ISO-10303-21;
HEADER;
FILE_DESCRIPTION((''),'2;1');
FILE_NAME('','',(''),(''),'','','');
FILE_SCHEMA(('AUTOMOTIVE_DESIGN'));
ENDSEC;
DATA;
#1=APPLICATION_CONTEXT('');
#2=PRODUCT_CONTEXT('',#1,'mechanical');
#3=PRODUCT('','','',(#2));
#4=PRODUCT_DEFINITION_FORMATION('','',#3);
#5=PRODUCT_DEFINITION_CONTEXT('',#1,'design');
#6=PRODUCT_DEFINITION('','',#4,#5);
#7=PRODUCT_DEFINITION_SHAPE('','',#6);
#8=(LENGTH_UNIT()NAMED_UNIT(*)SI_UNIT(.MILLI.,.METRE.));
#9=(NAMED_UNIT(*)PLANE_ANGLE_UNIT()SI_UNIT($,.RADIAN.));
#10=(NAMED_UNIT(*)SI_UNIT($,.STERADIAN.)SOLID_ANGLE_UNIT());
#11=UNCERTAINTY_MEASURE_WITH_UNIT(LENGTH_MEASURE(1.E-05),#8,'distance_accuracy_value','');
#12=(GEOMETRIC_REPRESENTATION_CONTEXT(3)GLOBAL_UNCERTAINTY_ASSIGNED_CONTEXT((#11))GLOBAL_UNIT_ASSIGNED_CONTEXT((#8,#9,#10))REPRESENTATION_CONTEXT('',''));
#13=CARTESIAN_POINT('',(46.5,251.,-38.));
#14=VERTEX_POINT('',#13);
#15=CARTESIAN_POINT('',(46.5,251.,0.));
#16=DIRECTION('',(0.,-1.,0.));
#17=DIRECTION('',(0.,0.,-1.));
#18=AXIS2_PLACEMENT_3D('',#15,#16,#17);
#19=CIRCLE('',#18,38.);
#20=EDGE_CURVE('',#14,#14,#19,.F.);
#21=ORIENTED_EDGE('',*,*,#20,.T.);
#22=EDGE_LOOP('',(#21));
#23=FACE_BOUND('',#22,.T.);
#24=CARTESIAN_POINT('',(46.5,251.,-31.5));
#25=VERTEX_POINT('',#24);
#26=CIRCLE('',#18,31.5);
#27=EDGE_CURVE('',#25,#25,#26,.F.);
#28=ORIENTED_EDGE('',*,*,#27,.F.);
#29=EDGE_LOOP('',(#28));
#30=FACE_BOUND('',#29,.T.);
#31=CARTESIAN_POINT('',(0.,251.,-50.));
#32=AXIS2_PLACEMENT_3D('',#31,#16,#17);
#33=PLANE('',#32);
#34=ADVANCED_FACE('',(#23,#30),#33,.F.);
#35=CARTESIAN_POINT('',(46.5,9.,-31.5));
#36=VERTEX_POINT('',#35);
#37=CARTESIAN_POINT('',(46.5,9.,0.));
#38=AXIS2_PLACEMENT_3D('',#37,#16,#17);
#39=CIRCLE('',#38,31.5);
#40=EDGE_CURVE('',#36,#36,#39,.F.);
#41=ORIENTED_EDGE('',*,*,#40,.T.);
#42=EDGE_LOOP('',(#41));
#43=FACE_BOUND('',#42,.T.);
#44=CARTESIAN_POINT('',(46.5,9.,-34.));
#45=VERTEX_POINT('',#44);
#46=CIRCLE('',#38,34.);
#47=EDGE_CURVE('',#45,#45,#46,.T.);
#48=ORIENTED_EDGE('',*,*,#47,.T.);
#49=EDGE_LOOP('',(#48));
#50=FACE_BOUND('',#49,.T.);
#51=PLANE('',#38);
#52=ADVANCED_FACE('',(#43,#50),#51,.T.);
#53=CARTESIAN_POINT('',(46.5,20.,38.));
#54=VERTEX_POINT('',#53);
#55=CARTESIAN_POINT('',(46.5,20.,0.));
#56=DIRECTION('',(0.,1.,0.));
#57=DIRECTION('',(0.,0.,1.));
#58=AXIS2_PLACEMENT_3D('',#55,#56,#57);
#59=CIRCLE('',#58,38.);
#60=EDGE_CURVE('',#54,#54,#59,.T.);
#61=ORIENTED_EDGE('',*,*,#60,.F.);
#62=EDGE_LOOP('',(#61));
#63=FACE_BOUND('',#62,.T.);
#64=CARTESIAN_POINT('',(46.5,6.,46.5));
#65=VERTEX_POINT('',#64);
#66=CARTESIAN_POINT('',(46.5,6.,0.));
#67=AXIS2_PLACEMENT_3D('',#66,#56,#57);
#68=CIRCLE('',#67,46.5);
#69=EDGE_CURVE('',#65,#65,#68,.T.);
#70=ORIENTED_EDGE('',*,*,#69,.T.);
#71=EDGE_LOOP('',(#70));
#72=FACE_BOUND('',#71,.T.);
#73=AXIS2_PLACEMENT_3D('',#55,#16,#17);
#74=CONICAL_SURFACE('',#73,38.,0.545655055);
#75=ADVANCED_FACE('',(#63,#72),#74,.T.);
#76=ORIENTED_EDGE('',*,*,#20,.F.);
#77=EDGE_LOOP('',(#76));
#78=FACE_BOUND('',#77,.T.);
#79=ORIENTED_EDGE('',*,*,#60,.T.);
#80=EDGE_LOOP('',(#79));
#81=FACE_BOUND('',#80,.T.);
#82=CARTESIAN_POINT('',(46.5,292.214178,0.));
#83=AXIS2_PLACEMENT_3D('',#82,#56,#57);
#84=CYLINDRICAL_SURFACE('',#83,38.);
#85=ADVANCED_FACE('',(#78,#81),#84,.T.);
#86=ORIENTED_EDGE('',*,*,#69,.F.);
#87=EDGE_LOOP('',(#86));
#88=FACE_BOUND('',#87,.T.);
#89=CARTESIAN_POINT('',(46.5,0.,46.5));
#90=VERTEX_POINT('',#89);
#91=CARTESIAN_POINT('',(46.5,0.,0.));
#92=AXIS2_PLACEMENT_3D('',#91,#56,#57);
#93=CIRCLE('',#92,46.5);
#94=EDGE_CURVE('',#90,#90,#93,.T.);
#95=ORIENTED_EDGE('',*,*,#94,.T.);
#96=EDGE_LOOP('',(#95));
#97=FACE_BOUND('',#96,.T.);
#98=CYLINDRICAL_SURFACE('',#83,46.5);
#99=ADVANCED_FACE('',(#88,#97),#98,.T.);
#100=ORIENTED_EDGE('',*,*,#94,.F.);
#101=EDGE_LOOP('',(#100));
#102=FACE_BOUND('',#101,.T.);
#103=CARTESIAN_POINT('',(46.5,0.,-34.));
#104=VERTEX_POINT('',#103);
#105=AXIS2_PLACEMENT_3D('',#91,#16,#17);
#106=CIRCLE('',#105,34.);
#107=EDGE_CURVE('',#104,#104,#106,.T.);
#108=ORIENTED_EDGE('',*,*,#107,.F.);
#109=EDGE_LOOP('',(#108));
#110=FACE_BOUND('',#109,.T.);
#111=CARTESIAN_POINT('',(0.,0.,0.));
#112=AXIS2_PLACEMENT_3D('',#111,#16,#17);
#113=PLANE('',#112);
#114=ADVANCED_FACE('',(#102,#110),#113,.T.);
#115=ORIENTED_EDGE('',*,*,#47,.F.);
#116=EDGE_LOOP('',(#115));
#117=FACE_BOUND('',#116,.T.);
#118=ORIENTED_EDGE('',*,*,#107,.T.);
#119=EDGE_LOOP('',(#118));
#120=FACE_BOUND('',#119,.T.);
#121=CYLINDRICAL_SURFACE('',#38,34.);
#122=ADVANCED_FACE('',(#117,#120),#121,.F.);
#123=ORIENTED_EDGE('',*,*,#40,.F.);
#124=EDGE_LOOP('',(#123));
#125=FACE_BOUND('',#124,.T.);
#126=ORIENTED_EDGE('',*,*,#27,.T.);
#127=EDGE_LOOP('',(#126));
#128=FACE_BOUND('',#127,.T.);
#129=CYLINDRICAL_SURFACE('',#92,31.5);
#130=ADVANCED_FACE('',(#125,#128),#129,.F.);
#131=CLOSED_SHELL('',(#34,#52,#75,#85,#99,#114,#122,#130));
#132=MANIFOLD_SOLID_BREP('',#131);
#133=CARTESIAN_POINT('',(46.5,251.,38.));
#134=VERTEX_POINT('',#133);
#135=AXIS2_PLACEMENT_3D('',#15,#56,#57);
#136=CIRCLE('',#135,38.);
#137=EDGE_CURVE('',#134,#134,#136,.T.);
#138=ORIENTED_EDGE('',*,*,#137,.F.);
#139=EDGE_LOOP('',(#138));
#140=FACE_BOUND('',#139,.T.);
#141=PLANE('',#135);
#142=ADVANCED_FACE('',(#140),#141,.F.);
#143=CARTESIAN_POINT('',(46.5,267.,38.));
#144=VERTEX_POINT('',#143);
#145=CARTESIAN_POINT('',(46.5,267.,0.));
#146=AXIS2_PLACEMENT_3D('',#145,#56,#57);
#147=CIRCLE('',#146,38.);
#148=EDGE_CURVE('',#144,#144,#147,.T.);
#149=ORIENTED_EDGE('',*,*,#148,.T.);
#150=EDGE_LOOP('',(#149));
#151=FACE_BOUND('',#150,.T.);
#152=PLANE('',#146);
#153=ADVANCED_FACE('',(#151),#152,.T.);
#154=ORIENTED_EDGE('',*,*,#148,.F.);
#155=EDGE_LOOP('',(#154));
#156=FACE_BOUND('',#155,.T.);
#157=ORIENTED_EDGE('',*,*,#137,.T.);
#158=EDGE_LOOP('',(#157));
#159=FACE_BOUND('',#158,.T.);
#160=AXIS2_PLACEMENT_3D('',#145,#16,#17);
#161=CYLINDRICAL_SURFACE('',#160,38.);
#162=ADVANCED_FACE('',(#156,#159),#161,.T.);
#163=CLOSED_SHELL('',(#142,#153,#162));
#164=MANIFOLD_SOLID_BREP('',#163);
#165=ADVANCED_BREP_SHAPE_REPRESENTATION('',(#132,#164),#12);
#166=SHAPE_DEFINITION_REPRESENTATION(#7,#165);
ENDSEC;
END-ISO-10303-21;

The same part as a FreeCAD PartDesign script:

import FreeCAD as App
import Part
import Sketcher
from FreeCAD import Vector
Q = App.Units.Quantity

doc = App.newDocument("Part")
params = doc.addObject("Spreadsheet::Sheet", "Params")
for row, (alias, value) in enumerate([
    ("sketch1_width", "38 mm"),
    ("sketch1_height", "6 mm"),
    ("sketch1_height2", "268 mm"),
    ("sketch1_height3", "248 mm"),
    ("sketch1_width2", "46.5 mm"),
    ("revolution_angle", "360 deg"),
    ("sketch2_diameter", "63 mm"),
    ("sketch3_diameter", "68 mm"),
    ("pocket2_length", "9 mm"),
    ("pocket3_length", "100 mm"),
    ("sketch5_diameter", "76 mm"),
    ("pad1_length", "16 mm"),
], start=1):
    params.set(f"A{row}", alias)
    params.set(f"B{row}", "=" + value)
    params.setAlias(f"B{row}", alias)

body = doc.addObject("PartDesign::Body", "Body")

# Sketch on XY plane
sketch1 = doc.addObject("Sketcher::SketchObject", "Sketch")
body.addObject(sketch1)
sketch1.AttachmentSupport = (doc.XY_Plane, [""])
sketch1.MapMode = "FlatFace"
sketch1.addGeometry(Part.LineSegment(Vector(0, 6, 0), Vector(0, 0, 0)), False)
sketch1.addGeometry(Part.LineSegment(Vector(0, 0, 0), Vector(46, 0, 0)), False)
sketch1.addGeometry(Part.LineSegment(Vector(46, 0, 0), Vector(46, 268, 0)), False)
sketch1.addGeometry(Part.LineSegment(Vector(46, 268, 0), Vector(8, 268, 0)), False)
sketch1.addGeometry(Part.LineSegment(Vector(8, 268, 0), Vector(8, 20, 0)), False)
sketch1.addGeometry(Part.LineSegment(Vector(8, 20, 0), Vector(0, 6, 0)), False)
sketch1.addGeometry(Part.LineSegment(Vector(46, 268, 0), Vector(46, 0, 0)), True)  # axis
sketch1.addConstraint(Sketcher.Constraint("Coincident", 0, 2, 1, 1))
sketch1.addConstraint(Sketcher.Constraint("Coincident", 1, 2, 2, 1))
sketch1.addConstraint(Sketcher.Constraint("Coincident", 2, 2, 3, 1))
sketch1.addConstraint(Sketcher.Constraint("Coincident", 3, 2, 4, 1))
sketch1.addConstraint(Sketcher.Constraint("Coincident", 4, 2, 5, 1))
sketch1.addConstraint(Sketcher.Constraint("Coincident", 5, 2, 0, 1))
sketch1.addConstraint(Sketcher.Constraint("Vertical", 0))
sketch1.addConstraint(Sketcher.Constraint("Horizontal", 1))
sketch1.addConstraint(Sketcher.Constraint("Vertical", 2))
sketch1.addConstraint(Sketcher.Constraint("Horizontal", 3))
sketch1.addConstraint(Sketcher.Constraint("Vertical", 4))
sketch1.addConstraint(Sketcher.Constraint("Vertical", 6))
sketch1.addConstraint(Sketcher.Constraint("Coincident", 0, 2, -1, 1))
sketch1.addConstraint(Sketcher.Constraint("Coincident", 6, 1, 2, 2))
sketch1.addConstraint(Sketcher.Constraint("PointOnObject", 6, 2, -1))
sketch1.addConstraint(Sketcher.Constraint("DistanceX", 3, 2, 3, 1, Q("38 mm")))
sketch1.addConstraint(Sketcher.Constraint("DistanceY", 0, 2, 0, 1, Q("6 mm")))
sketch1.addConstraint(Sketcher.Constraint("DistanceY", 2, 1, 2, 2, Q("268 mm")))
sketch1.addConstraint(Sketcher.Constraint("DistanceY", 4, 2, 4, 1, Q("248 mm")))
sketch1.addConstraint(Sketcher.Constraint("DistanceX", 1, 1, 1, 2, Q("46.5 mm")))
sketch1.setExpression("Constraints[15]", "Params.sketch1_width")
sketch1.setExpression("Constraints[16]", "Params.sketch1_height")
sketch1.setExpression("Constraints[17]", "Params.sketch1_height2")
sketch1.setExpression("Constraints[18]", "Params.sketch1_height3")
sketch1.setExpression("Constraints[19]", "Params.sketch1_width2")
revolution = doc.addObject("PartDesign::Revolution", "Revolution")
body.addObject(revolution)
revolution.Profile = sketch1
revolution.ReferenceAxis = (sketch1, ["Axis0"])
revolution.setExpression("Angle", "Params.revolution_angle")

# Sketch on XZ plane
sketch2 = doc.addObject("Sketcher::SketchObject", "Sketch001")
body.addObject(sketch2)
sketch2.AttachmentSupport = (doc.XZ_Plane, [""])
sketch2.MapMode = "FlatFace"
sketch2.AttachmentOffset = App.Placement(Vector(0, 0, -268), App.Rotation())
sketch2.addGeometry(Part.Circle(Vector(46, 0, 0), Vector(0, 0, 1), 32), False)
sketch2.addConstraint(Sketcher.Constraint("PointOnObject", 0, 3, -1))
sketch2.addConstraint(Sketcher.Constraint("Diameter", 0, Q("63 mm")))
sketch2.addConstraint(Sketcher.Constraint("DistanceX", -1, 1, 0, 3, Q("46.5 mm")))
sketch2.setExpression("Constraints[1]", "Params.sketch2_diameter")
pocket1 = doc.addObject("PartDesign::Pocket", "Pocket")
body.addObject(pocket1)
pocket1.Profile = sketch2
pocket1.Type = "ThroughAll"
pocket1.Reversed = True

# Sketch on XZ plane
sketch3 = doc.addObject("Sketcher::SketchObject", "Sketch002")
body.addObject(sketch3)
sketch3.AttachmentSupport = (doc.XZ_Plane, [""])
sketch3.MapMode = "FlatFace"
sketch3.addGeometry(Part.Circle(Vector(46, 0, 0), Vector(0, 0, 1), 34), False)
sketch3.addConstraint(Sketcher.Constraint("PointOnObject", 0, 3, -1))
sketch3.addConstraint(Sketcher.Constraint("Diameter", 0, Q("68 mm")))
sketch3.addConstraint(Sketcher.Constraint("DistanceX", -1, 1, 0, 3, Q("46.5 mm")))
sketch3.setExpression("Constraints[1]", "Params.sketch3_diameter")
pocket2 = doc.addObject("PartDesign::Pocket", "Pocket001")
body.addObject(pocket2)
pocket2.Profile = sketch3
pocket2.setExpression("Length", "Params.pocket2_length")

# Sketch on XY plane
sketch4 = doc.addObject("Sketcher::SketchObject", "Sketch003")
body.addObject(sketch4)
sketch4.AttachmentSupport = (doc.XY_Plane, [""])
sketch4.MapMode = "FlatFace"
sketch4.addGeometry(Part.LineSegment(Vector(0, 275, 0), Vector(0, 251, 0)), False)
sketch4.addGeometry(Part.LineSegment(Vector(0, 251, 0), Vector(91, 251, 0)), False)
sketch4.addGeometry(Part.LineSegment(Vector(91, 251, 0), Vector(91, 275, 0)), False)
sketch4.addGeometry(Part.LineSegment(Vector(91, 275, 0), Vector(0, 275, 0)), False)
sketch4.addConstraint(Sketcher.Constraint("Coincident", 0, 2, 1, 1))
sketch4.addConstraint(Sketcher.Constraint("Coincident", 1, 2, 2, 1))
sketch4.addConstraint(Sketcher.Constraint("Coincident", 2, 2, 3, 1))
sketch4.addConstraint(Sketcher.Constraint("Coincident", 3, 2, 0, 1))
sketch4.addConstraint(Sketcher.Constraint("Vertical", 0))
sketch4.addConstraint(Sketcher.Constraint("Horizontal", 1))
sketch4.addConstraint(Sketcher.Constraint("Vertical", 2))
sketch4.addConstraint(Sketcher.Constraint("Horizontal", 3))
sketch4.addConstraint(Sketcher.Constraint("PointOnObject", 0, 2, -2))
sketch4.addConstraint(Sketcher.Constraint("DistanceY", -1, 1, 0, 2, Q("251 mm")))
sketch4.addConstraint(Sketcher.Constraint("DistanceX", 1, 1, 1, 2, Q("90.88026 mm")))
sketch4.addConstraint(Sketcher.Constraint("DistanceY", 0, 2, 0, 1, Q("24.111111 mm")))
pocket3 = doc.addObject("PartDesign::Pocket", "Pocket002")
body.addObject(pocket3)
pocket3.Profile = sketch4
pocket3.setExpression("Length", "Params.pocket3_length")
pocket3.Midplane = True
body2 = doc.addObject("PartDesign::Body", "Body001")

# Sketch on XZ plane
sketch5 = doc.addObject("Sketcher::SketchObject", "Sketch004")
body2.addObject(sketch5)
sketch5.AttachmentSupport = (doc.getObject("XZ_Plane001"), [""])
sketch5.MapMode = "FlatFace"
sketch5.AttachmentOffset = App.Placement(Vector(0, 0, -251), App.Rotation())
sketch5.addGeometry(Part.Circle(Vector(46, 0, 0), Vector(0, 0, 1), 38), False)
sketch5.addConstraint(Sketcher.Constraint("PointOnObject", 0, 3, -1))
sketch5.addConstraint(Sketcher.Constraint("Diameter", 0, Q("76 mm")))
sketch5.addConstraint(Sketcher.Constraint("DistanceX", -1, 1, 0, 3, Q("46.5 mm")))
sketch5.setExpression("Constraints[1]", "Params.sketch5_diameter")
pad1 = doc.addObject("PartDesign::Pad", "Pad")
body2.addObject(pad1)
pad1.Profile = sketch5
pad1.setExpression("Length", "Params.pad1_length")
pad1.Reversed = True

doc.recompute()
